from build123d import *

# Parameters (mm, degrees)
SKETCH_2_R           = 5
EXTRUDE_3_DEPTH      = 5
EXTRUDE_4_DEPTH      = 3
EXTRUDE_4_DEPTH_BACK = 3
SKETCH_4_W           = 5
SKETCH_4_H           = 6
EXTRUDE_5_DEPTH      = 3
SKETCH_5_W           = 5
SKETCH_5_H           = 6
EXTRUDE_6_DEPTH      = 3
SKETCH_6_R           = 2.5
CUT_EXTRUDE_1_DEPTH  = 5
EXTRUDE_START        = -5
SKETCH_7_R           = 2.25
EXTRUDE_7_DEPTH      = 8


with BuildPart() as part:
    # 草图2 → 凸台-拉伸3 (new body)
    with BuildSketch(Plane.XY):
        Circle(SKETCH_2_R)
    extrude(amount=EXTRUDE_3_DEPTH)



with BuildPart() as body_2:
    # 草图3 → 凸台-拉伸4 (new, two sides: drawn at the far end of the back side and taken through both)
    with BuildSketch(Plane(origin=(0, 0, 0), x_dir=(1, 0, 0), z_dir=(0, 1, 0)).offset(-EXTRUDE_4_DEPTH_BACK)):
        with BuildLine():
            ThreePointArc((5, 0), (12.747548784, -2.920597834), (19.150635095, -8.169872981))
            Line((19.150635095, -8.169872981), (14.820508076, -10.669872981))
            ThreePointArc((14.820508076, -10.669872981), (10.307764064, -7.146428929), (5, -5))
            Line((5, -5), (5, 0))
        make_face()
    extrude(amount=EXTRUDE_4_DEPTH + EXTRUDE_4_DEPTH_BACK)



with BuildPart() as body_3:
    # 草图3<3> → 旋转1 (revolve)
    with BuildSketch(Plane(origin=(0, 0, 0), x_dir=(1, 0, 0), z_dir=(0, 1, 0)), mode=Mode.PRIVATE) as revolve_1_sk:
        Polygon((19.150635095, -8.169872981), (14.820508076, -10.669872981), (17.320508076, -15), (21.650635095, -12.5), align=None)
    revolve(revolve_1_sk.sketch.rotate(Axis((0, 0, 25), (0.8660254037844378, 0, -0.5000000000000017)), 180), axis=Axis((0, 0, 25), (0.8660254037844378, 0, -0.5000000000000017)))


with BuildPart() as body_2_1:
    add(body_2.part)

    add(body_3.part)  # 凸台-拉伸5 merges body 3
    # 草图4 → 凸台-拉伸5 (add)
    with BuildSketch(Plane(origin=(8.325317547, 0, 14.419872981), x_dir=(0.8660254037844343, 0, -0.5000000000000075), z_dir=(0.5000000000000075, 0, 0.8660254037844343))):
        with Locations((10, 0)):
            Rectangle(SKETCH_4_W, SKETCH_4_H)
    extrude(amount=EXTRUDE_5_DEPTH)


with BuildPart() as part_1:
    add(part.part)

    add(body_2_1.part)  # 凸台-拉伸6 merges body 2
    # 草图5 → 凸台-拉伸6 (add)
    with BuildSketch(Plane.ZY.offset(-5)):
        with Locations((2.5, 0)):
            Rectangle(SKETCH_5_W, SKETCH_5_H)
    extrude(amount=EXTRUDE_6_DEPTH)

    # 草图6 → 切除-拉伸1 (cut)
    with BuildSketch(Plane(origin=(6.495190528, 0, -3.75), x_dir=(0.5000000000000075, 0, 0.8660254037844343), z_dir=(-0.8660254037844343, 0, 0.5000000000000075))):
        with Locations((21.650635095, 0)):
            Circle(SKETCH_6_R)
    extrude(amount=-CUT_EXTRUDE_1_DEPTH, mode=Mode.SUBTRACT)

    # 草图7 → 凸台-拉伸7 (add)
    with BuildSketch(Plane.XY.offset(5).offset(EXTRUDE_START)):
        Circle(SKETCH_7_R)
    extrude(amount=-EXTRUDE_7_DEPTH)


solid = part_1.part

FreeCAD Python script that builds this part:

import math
import FreeCAD as App
import Part
import Sketcher

V = App.Vector
Q = App.Units.Quantity


def add_polygon(sketch, points):
    """Adds a closed chain of lines whose ends are joined by coincident constraints."""
    first, n = sketch.GeometryCount, len(points)
    for a, b in zip(points, points[1:] + points[:1]):
        sketch.addGeometry(Part.LineSegment(App.Vector(*a, 0), App.Vector(*b, 0)), False)
    for i in range(n):
        sketch.addConstraint(Sketcher.Constraint("Coincident", first + i, 2, first + (i + 1) % n, 1))

doc = App.newDocument("Part")
body = doc.addObject("PartDesign::Body", "Body")

# Sketch on XY plane
sketch1 = doc.addObject("Sketcher::SketchObject", "Sketch")
body.addObject(sketch1)
sketch1.AttachmentSupport = (doc.XY_Plane, [""])
sketch1.MapMode = "FlatFace"
sketch1.addGeometry(Part.Circle(V(0, 0, 0), V(0, 0, 1), 5), False)
sketch1.addConstraint(Sketcher.Constraint("Coincident", 0, 3, -1, 1))
sketch1.addConstraint(Sketcher.Constraint("Diameter", 0, 10.0))
pad1 = doc.addObject("PartDesign::Pad", "Pad")
body.addObject(pad1)
pad1.Profile = sketch1
pad1.Length = 5
body2 = doc.addObject("PartDesign::Body", "Body001")

# Sketch on XZ plane
sketch2 = doc.addObject("Sketcher::SketchObject", "Sketch001")
body2.addObject(sketch2)
sketch2.AttachmentSupport = (doc.getObject("XZ_Plane001"), [""])
sketch2.MapMode = "FlatFace"
sketch2.addGeometry(Part.ArcOfCircle(Part.Circle(V(0, 25, 0), V(0, 0, 1), 25), math.radians(-79), math.radians(-41)), False)
sketch2.addGeometry(Part.LineSegment(V(5, 0, 0), V(5, 5, 0)), False)
sketch2.addGeometry(Part.ArcOfCircle(Part.Circle(V(0, 25, 0), V(0, 0, 1), 21), math.radians(-76), math.radians(-44)), False)
sketch2.addGeometry(Part.LineSegment(V(15, 11, 0), V(19, 8, 0)), False)
sketch2.addConstraint(Sketcher.Constraint("Coincident", 0, 1, 1, 1))
sketch2.addConstraint(Sketcher.Constraint("Coincident", 1, 2, 2, 1))
sketch2.addConstraint(Sketcher.Constraint("Coincident", 2, 2, 3, 1))
sketch2.addConstraint(Sketcher.Constraint("Coincident", 3, 2, 0, 2))
sketch2.addConstraint(Sketcher.Constraint("Vertical", 1))
sketch2.addConstraint(Sketcher.Constraint("Coincident", 2, 3, 0, 3))
sketch2.addConstraint(Sketcher.Constraint("PointOnObject", 0, 3, -2))
sketch2.addConstraint(Sketcher.Constraint("PointOnObject", 0, 1, -1))
sketch2.addConstraint(Sketcher.Constraint("DistanceY", 1, 1, 1, 2, 5.0))
sketch2.addConstraint(Sketcher.Constraint("Angle", 3, Q("-30 deg")))
sketch2.addConstraint(Sketcher.Constraint("Distance", 3, 5.0))
sketch2.addConstraint(Sketcher.Constraint("DistanceY", -1, 1, 0, 3, 25.0))
sketch2.addConstraint(Sketcher.Constraint("DistanceX", -1, 1, 0, 1, 5.0))
pad2 = doc.addObject("PartDesign::Pad", "Pad001")
body2.addObject(pad2)
pad2.Profile = sketch2
pad2.Type = "TwoLengths"
pad2.Length = 3
pad2.Length2 = 3
pad2.Reversed = True
body3 = doc.addObject("PartDesign::Body", "Body002")

# Sketch on XZ plane
sketch3 = doc.addObject("Sketcher::SketchObject", "Sketch002")
body3.addObject(sketch3)
sketch3.AttachmentSupport = (doc.getObject("XZ_Plane002"), [""])
sketch3.MapMode = "FlatFace"
add_polygon(sketch3, [(19, 8), (15, 11), (17, 15), (22, 12)])  # lines 0-3
sketch3.addGeometry(Part.LineSegment(V(17, 15, 0), V(22, 12, 0)), True)  # axis
sketch3.addConstraint(Sketcher.Constraint("Coincident", 4, 1, 1, 2))
sketch3.addConstraint(Sketcher.Constraint("Coincident", 4, 2, 2, 2))
sketch3.addConstraint(Sketcher.Constraint("Perpendicular", 0, 1))
sketch3.addConstraint(Sketcher.Constraint("Perpendicular", 1, 2))
sketch3.addConstraint(Sketcher.Constraint("Perpendicular", 2, 3))
sketch3.addConstraint(Sketcher.Constraint("Equal", 0, 1))
sketch3.addConstraint(Sketcher.Constraint("Angle", 0, Q("150 deg")))
sketch3.addConstraint(Sketcher.Constraint("Distance", 0, 5.0))
sketch3.addConstraint(Sketcher.Constraint("DistanceY", -1, 1, 1, 2, 15.0))
sketch3.addConstraint(Sketcher.Constraint("DistanceX", -1, 1, 0, 2, 14.820508))
revolution = doc.addObject("PartDesign::Revolution", "Revolution")
body3.addObject(revolution)
revolution.Profile = sketch3
revolution.ReferenceAxis = (sketch3, ["Axis0"])
revolution.Angle = 360
body2.AllowCompound = True
doc.recompute()

boolean = doc.addObject("PartDesign::Boolean", "Boolean")
body2.addObject(boolean)
boolean.Type = "Fuse"
boolean.addObjects([body3])

# Sketch on an angled plane
sketch4 = doc.addObject("Sketcher::SketchObject", "Sketch003")
body2.addObject(sketch4)
sketch4.Placement = App.Placement(V(8.325318, 0, 14.419873), App.Rotation(V(0.866025404, 0, -0.5), V(0, 1, 0), V(0.5, 0, 0.866025404), "ZXY"))
add_polygon(sketch4, [(8, 3), (8, -3), (13, -3), (13, 3)])  # lines 0-3
sketch4.addConstraint(Sketcher.Constraint("Vertical", 0))
sketch4.addConstraint(Sketcher.Constraint("Horizontal", 1))
sketch4.addConstraint(Sketcher.Constraint("Vertical", 2))
sketch4.addConstraint(Sketcher.Constraint("Horizontal", 3))
sketch4.addConstraint(Sketcher.Constraint("DistanceX", 1, 1, 1, 2, 5.0))
sketch4.addConstraint(Sketcher.Constraint("DistanceY", 0, 2, 0, 1, 6.0))
sketch4.addConstraint(Sketcher.Constraint("DistanceY", 0, 2, -1, 1, 3.0))
sketch4.addConstraint(Sketcher.Constraint("DistanceX", -1, 1, 0, 2, 7.5))
pad3 = doc.addObject("PartDesign::Pad", "Pad002")
body2.addObject(pad3)
pad3.Profile = sketch4
pad3.Length = 3
body.AllowCompound = True
doc.recompute()

boolean2 = doc.addObject("PartDesign::Boolean", "Boolean001")
body.addObject(boolean2)
boolean2.Type = "Fuse"
boolean2.addObjects([body2])

# Sketch on YZ plane
sketch5 = doc.addObject("Sketcher::SketchObject", "Sketch004")
body.addObject(sketch5)
sketch5.AttachmentSupport = (doc.YZ_Plane, [""])
sketch5.MapMode = "FlatFace"
sketch5.AttachmentOffset = App.Placement(V(0, 0, 5), App.Rotation())
add_polygon(sketch5, [(3, 0), (-3, 0), (-3, 5), (3, 5)])  # lines 0-3
sketch5.addConstraint(Sketcher.Constraint("Horizontal", 0))
sketch5.addConstraint(Sketcher.Constraint("Vertical", 1))
sketch5.addConstraint(Sketcher.Constraint("Horizontal", 2))
sketch5.addConstraint(Sketcher.Constraint("Vertical", 3))
sketch5.addConstraint(Sketcher.Constraint("Symmetric", 0, 2, 3, 2, -1, 1))
sketch5.addConstraint(Sketcher.Constraint("DistanceX", 0, 2, 0, 1, 6.0))
sketch5.addConstraint(Sketcher.Constraint("DistanceY", 1, 1, 1, 2, 5.0))
pad4 = doc.addObject("PartDesign::Pad", "Pad003")
body.addObject(pad4)
pad4.Profile = sketch5
pad4.Length = 3
pad4.Reversed = True

# Sketch on an angled plane
sketch6 = doc.addObject("Sketcher::SketchObject", "Sketch005")
body.addObject(sketch6)
sketch6.Placement = App.Placement(V(6.495191, 0, -3.75), App.Rotation(V(0.5, 0, 0.866025404), V(0, 1, 0), V(-0.866025404, 0, 0.5), "ZXY"))
sketch6.addGeometry(Part.Circle(V(21.7, 0, 0), V(0, 0, 1), 2.5), False)
sketch6.addConstraint(Sketcher.Constraint("PointOnObject", 0, 3, -1))
sketch6.addConstraint(Sketcher.Constraint("Diameter", 0, 5.0))
sketch6.addConstraint(Sketcher.Constraint("DistanceX", -1, 1, 0, 3, 21.650635))
pocket1 = doc.addObject("PartDesign::Pocket", "Pocket")
body.addObject(pocket1)
pocket1.Profile = sketch6
pocket1.Length = 5

# Sketch on XY plane
sketch7 = doc.addObject("Sketcher::SketchObject", "Sketch006")
body.addObject(sketch7)
sketch7.AttachmentSupport = (doc.XY_Plane, [""])
sketch7.MapMode = "FlatFace"
sketch7.addGeometry(Part.Circle(V(0, 0, 0), V(0, 0, 1), 2.2), False)
sketch7.addConstraint(Sketcher.Constraint("Coincident", 0, 3, -1, 1))
sketch7.addConstraint(Sketcher.Constraint("Diameter", 0, 4.5))
pad5 = doc.addObject("PartDesign::Pad", "Pad004")
body.addObject(pad5)
pad5.Profile = sketch7
pad5.Length = 8
pad5.Reversed = True

doc.recompute()
